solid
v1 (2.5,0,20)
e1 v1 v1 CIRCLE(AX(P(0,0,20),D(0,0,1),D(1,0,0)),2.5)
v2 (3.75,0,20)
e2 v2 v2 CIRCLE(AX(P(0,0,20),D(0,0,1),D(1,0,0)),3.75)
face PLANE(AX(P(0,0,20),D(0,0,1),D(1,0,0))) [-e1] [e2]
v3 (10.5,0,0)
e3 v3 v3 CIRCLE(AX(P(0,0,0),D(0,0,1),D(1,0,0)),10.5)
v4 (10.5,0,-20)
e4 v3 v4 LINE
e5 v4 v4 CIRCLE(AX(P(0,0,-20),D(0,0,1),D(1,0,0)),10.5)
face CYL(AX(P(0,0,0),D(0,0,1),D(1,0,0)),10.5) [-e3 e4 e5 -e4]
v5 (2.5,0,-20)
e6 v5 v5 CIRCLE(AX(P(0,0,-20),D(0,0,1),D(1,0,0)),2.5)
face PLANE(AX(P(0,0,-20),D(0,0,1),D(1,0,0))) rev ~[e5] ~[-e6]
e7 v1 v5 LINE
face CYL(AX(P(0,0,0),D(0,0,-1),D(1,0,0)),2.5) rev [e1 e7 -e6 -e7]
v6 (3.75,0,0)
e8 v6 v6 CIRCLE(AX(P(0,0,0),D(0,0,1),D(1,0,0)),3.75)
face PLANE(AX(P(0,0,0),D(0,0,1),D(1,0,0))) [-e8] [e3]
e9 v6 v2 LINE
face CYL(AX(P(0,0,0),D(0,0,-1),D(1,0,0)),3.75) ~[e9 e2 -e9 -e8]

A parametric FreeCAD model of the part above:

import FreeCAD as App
import Part
import Sketcher
from FreeCAD import Vector
Q = App.Units.Quantity

doc = App.newDocument("Part")
body = doc.addObject("PartDesign::Body", "Body")

sketch1 = body.newObject("Sketcher::SketchObject", "Sketch")
sketch1.AttachmentSupport = (doc.getObject("XY_Plane"), [""])
sketch1.MapMode = "FlatFace"
sketch1.addGeometry(Part.Circle(Vector(0, 0, 0), Vector(0, 0, 1), 3.75), False)
sketch1.addGeometry(Part.Circle(Vector(0, 0, 0), Vector(0, 0, 1), 2.5), False)
sketch1.addConstraint(Sketcher.Constraint("Coincident", 0, 3, -1, 1))
sketch1.addConstraint(Sketcher.Constraint("Coincident", 1, 3, -1, 1))
sketch1.addConstraint(Sketcher.Constraint("Diameter", 1, Q("5 mm")))
sketch1.addConstraint(Sketcher.Constraint("Diameter", 0, Q("7.5 mm")))
pad1 = body.newObject("PartDesign::Pad", "Pad")
pad1.Profile = sketch1
pad1.Length = 20

sketch2 = body.newObject("Sketcher::SketchObject", "Sketch001")
sketch2.AttachmentSupport = (doc.getObject("XY_Plane"), [""])
sketch2.MapMode = "FlatFace"
sketch2.addGeometry(Part.Circle(Vector(0, 0, 0), Vector(0, 0, 1), 10.5), False)
sketch2.addGeometry(Part.Circle(Vector(0, 0, 0), Vector(0, 0, 1), 2.5), False)
sketch2.addConstraint(Sketcher.Constraint("Coincident", 0, 3, -1, 1))
sketch2.addConstraint(Sketcher.Constraint("Coincident", 1, 3, -1, 1))
sketch2.addConstraint(Sketcher.Constraint("Diameter", 0, Q("21 mm")))
sketch2.addConstraint(Sketcher.Constraint("Diameter", 1, Q("5 mm")))
pad2 = body.newObject("PartDesign::Pad", "Pad001")
pad2.Profile = sketch2
pad2.Length = 20
pad2.Reversed = True

doc.recompute()
